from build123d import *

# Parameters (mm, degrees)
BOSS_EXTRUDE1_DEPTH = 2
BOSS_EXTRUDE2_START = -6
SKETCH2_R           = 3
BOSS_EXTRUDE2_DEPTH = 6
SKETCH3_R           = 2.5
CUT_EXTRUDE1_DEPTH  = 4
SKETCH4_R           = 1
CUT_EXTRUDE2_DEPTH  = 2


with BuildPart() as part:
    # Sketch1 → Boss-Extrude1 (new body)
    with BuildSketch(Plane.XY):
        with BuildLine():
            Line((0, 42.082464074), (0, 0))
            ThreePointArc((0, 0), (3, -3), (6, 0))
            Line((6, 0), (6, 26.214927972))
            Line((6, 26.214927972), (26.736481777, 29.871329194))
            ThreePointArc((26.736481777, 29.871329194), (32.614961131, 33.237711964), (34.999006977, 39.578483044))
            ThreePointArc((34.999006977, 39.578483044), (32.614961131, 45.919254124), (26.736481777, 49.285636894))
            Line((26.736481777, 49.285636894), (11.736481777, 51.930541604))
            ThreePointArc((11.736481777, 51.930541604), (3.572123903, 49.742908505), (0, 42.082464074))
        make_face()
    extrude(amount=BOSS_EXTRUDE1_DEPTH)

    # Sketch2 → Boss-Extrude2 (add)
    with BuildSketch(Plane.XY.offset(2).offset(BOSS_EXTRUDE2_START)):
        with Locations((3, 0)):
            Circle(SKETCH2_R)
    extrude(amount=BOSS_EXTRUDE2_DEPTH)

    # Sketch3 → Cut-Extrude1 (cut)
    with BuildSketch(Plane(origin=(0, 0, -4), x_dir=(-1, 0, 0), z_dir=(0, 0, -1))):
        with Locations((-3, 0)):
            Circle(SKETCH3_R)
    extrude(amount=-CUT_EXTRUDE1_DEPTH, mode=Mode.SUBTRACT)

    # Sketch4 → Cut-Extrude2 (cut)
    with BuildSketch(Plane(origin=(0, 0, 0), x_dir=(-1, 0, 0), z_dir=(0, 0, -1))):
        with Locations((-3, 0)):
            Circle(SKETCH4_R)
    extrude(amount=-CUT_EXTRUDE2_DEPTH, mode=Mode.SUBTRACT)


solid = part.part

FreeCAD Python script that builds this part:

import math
import FreeCAD as App
import Part
import Sketcher
from FreeCAD import Vector
Q = App.Units.Quantity

doc = App.newDocument("Part")
params = doc.addObject("Spreadsheet::Sheet", "Params")
for row, (alias, value) in enumerate([
    ("sketch1_radius", "3 mm"),
    ("sketch1_radius2", "10 mm"),
    ("pad1_length", "2 mm"),
    ("sketch2_diameter", "6 mm"),
    ("pad2_length", "6 mm"),
    ("sketch3_diameter", "5 mm"),
    ("pocket1_length", "4 mm"),
    ("sketch4_diameter", "2 mm"),
    ("pocket2_length", "2 mm"),
], start=1):
    params.set(f"A{row}", alias)
    params.set(f"B{row}", "=" + value)
    params.setAlias(f"B{row}", alias)

body = doc.addObject("PartDesign::Body", "Body")

# Sketch on XY plane
sketch1 = doc.addObject("Sketcher::SketchObject", "Sketch")
body.addObject(sketch1)
sketch1.AttachmentSupport = (doc.XY_Plane, [""])
sketch1.MapMode = "FlatFace"
sketch1.addGeometry(Part.LineSegment(Vector(0, 42.1, 0), Vector(0, 0, 0)), False)
sketch1.addGeometry(Part.ArcOfCircle(Part.Circle(Vector(3, 0, 0), Vector(0, 0, 1), 3), math.radians(180), math.radians(360)), False)
sketch1.addGeometry(Part.LineSegment(Vector(6, 0, 0), Vector(6, 26.2, 0)), False)
sketch1.addGeometry(Part.LineSegment(Vector(6, 26.2, 0), Vector(26.7, 29.9, 0)), False)
sketch1.addGeometry(Part.ArcOfCircle(Part.Circle(Vector(25, 39.7, 0), Vector(0, 0, 1), 10), math.radians(-80), math.radians(-1)), False)
sketch1.addGeometry(Part.ArcOfCircle(Part.Circle(Vector(25, 39.4, 0), Vector(0, 0, 1), 10), math.radians(1), math.radians(80)), False)
sketch1.addGeometry(Part.LineSegment(Vector(26.7, 49.3, 0), Vector(11.7, 51.9, 0)), False)
sketch1.addGeometry(Part.ArcOfCircle(Part.Circle(Vector(10, 42.1, 0), Vector(0, 0, 1), 10), math.radians(80), math.radians(180)), False)
sketch1.addConstraint(Sketcher.Constraint("Tangent", 0, 2, 1, 1))
sketch1.addConstraint(Sketcher.Constraint("Tangent", 1, 2, 2, 1))
sketch1.addConstraint(Sketcher.Constraint("Coincident", 2, 2, 3, 1))
sketch1.addConstraint(Sketcher.Constraint("Tangent", 3, 2, 4, 1))
sketch1.addConstraint(Sketcher.Constraint("Coincident", 4, 2, 5, 1))
sketch1.addConstraint(Sketcher.Constraint("Tangent", 5, 2, 6, 1))
sketch1.addConstraint(Sketcher.Constraint("Tangent", 6, 2, 7, 1))
sketch1.addConstraint(Sketcher.Constraint("Tangent", 7, 2, 0, 1))
sketch1.addConstraint(Sketcher.Constraint("Vertical", 0))
sketch1.addConstraint(Sketcher.Constraint("Vertical", 2))
sketch1.addConstraint(Sketcher.Constraint("Coincident", 0, 2, -1, 1))
sketch1.addConstraint(Sketcher.Constraint("Equal", 4, 5))
sketch1.addConstraint(Sketcher.Constraint("Equal", 5, 7))
sketch1.addConstraint(Sketcher.Constraint("Vertical", 4, 3, 5, 3))
sketch1.addConstraint(Sketcher.Constraint("Vertical", 3, 2, 5, 2))
sketch1.addConstraint(Sketcher.Constraint("Radius", 1, 3.0))
sketch1.addConstraint(Sketcher.Constraint("Radius", 4, 10.0))
sketch1.addConstraint(Sketcher.Constraint("Angle", 3, Q("10 deg")))
sketch1.addConstraint(Sketcher.Constraint("DistanceX", -1, 1, 4, 3, 25.0))
sketch1.addConstraint(Sketcher.Constraint("DistanceY", 0, 2, 0, 1, 42.082464))
sketch1.addConstraint(Sketcher.Constraint("DistanceY", 2, 1, 2, 2, 26.214928))
sketch1.setExpression("Constraints[15]", "Params.sketch1_radius")
sketch1.setExpression("Constraints[16]", "Params.sketch1_radius2")
pad1 = doc.addObject("PartDesign::Pad", "Pad")
body.addObject(pad1)
pad1.Profile = sketch1
pad1.setExpression("Length", "Params.pad1_length")

# Sketch on XY plane
sketch2 = doc.addObject("Sketcher::SketchObject", "Sketch001")
body.addObject(sketch2)
sketch2.AttachmentSupport = (doc.XY_Plane, [""])
sketch2.MapMode = "FlatFace"
sketch2.AttachmentOffset = App.Placement(Vector(0, 0, -4), App.Rotation())
sketch2.addGeometry(Part.Circle(Vector(3, 0, 0), Vector(0, 0, 1), 3), False)
sketch2.addConstraint(Sketcher.Constraint("PointOnObject", 0, 3, -1))
sketch2.addConstraint(Sketcher.Constraint("Diameter", 0, 6.0))
sketch2.addConstraint(Sketcher.Constraint("DistanceX", -1, 1, 0, 3, 3.0))
sketch2.setExpression("Constraints[1]", "Params.sketch2_diameter")
pad2 = doc.addObject("PartDesign::Pad", "Pad001")
body.addObject(pad2)
pad2.Profile = sketch2
pad2.setExpression("Length", "Params.pad2_length")

# Sketch on XY plane
sketch3 = doc.addObject("Sketcher::SketchObject", "Sketch002")
body.addObject(sketch3)
sketch3.AttachmentSupport = (doc.XY_Plane, [""])
sketch3.MapMode = "FlatFace"
sketch3.AttachmentOffset = App.Placement(Vector(0, 0, -4), App.Rotation())
sketch3.addGeometry(Part.Circle(Vector(3, 0, 0), Vector(0, 0, 1), 2.5), False)
sketch3.addConstraint(Sketcher.Constraint("PointOnObject", 0, 3, -1))
sketch3.addConstraint(Sketcher.Constraint("Diameter", 0, 5.0))
sketch3.addConstraint(Sketcher.Constraint("DistanceX", -1, 1, 0, 3, 3.0))
sketch3.setExpression("Constraints[1]", "Params.sketch3_diameter")
pocket1 = doc.addObject("PartDesign::Pocket", "Pocket")
body.addObject(pocket1)
pocket1.Profile = sketch3
pocket1.setExpression("Length", "Params.pocket1_length")
pocket1.Reversed = True

# Sketch on XY plane
sketch4 = doc.addObject("Sketcher::SketchObject", "Sketch003")
body.addObject(sketch4)
sketch4.AttachmentSupport = (doc.XY_Plane, [""])
sketch4.MapMode = "FlatFace"
sketch4.addGeometry(Part.Circle(Vector(3, 0, 0), Vector(0, 0, 1), 1), False)
sketch4.addConstraint(Sketcher.Constraint("PointOnObject", 0, 3, -1))
sketch4.addConstraint(Sketcher.Constraint("Diameter", 0, 2.0))
sketch4.addConstraint(Sketcher.Constraint("DistanceX", -1, 1, 0, 3, 3.0))
sketch4.setExpression("Constraints[1]", "Params.sketch4_diameter")
pocket2 = doc.addObject("PartDesign::Pocket", "Pocket001")
body.addObject(pocket2)
pocket2.Profile = sketch4
pocket2.setExpression("Length", "Params.pocket2_length")
pocket2.Reversed = True

doc.recompute()
